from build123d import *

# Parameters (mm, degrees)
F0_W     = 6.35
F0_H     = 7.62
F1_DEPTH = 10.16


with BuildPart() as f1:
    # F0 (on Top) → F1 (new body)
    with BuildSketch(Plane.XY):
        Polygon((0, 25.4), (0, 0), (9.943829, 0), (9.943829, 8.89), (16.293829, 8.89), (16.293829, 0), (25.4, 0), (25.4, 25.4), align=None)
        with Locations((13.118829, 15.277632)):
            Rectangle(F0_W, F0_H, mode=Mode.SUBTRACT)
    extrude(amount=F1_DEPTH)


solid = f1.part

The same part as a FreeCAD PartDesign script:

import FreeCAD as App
import Part
import Sketcher
Q = App.Units.Quantity


def add_polygon(sketch, points):
    """Adds a closed chain of lines whose ends are joined by coincident constraints."""
    first, n = sketch.GeometryCount, len(points)
    for a, b in zip(points, points[1:] + points[:1]):
        sketch.addGeometry(Part.LineSegment(App.Vector(*a, 0), App.Vector(*b, 0)), False)
    for i in range(n):
        sketch.addConstraint(Sketcher.Constraint("Coincident", first + i, 2, first + (i + 1) % n, 1))

doc = App.newDocument("Part")
body = doc.addObject("PartDesign::Body", "Body")

# Sketch on XY plane
sketch1 = body.newObject("Sketcher::SketchObject", "Sketch")
sketch1.AttachmentSupport = (doc.getObject("XY_Plane"), [""])
sketch1.MapMode = "FlatFace"
add_polygon(sketch1, [(0, 25), (0, 0), (10, 0), (10, 9), (16, 9), (16, 0), (25, 0), (25, 25)])  # lines 0-7
add_polygon(sketch1, [(16, 11), (10, 11), (10, 19), (16, 19)])  # lines 8-11
sketch1.addConstraint([
    Sketcher.Constraint("Vertical", 0),
    Sketcher.Constraint("Horizontal", 1),
    Sketcher.Constraint("Vertical", 2),
    Sketcher.Constraint("Horizontal", 3),
    Sketcher.Constraint("Vertical", 4),
    Sketcher.Constraint("Horizontal", 5),
    Sketcher.Constraint("Vertical", 6),
    Sketcher.Constraint("Horizontal", 7),
    Sketcher.Constraint("Horizontal", 8),
    Sketcher.Constraint("Vertical", 9),
    Sketcher.Constraint("Horizontal", 10),
    Sketcher.Constraint("Vertical", 11),
    Sketcher.Constraint("Coincident", 0, 2, -1, 1),
    Sketcher.Constraint("PointOnObject", 4, 2, -1),
    Sketcher.Constraint("Vertical", 2, 2, 8, 2),
    Sketcher.Constraint("Vertical", 4, 2, 10, 2),
    Sketcher.Constraint("Equal", 7, 0),
    Sketcher.Constraint("DistanceX", 7, 2, 7, 1, Q("1 in")),
    Sketcher.Constraint("DistanceY", 9, 1, 9, 2, Q("0.3 in")),
    Sketcher.Constraint("DistanceX", 3, 1, 3, 2, Q("0.25 in")),
    Sketcher.Constraint("DistanceY", 2, 1, 2, 2, Q("0.35 in")),
    Sketcher.Constraint("DistanceX", 1, 1, 1, 2, 9.943829),
    Sketcher.Constraint("DistanceY", -1, 1, 9, 2, 19.087632),
])
pad1 = body.newObject("PartDesign::Pad", "Pad")
pad1.Profile = sketch1
pad1.Length = Q("0.4 in")

doc.recompute()
